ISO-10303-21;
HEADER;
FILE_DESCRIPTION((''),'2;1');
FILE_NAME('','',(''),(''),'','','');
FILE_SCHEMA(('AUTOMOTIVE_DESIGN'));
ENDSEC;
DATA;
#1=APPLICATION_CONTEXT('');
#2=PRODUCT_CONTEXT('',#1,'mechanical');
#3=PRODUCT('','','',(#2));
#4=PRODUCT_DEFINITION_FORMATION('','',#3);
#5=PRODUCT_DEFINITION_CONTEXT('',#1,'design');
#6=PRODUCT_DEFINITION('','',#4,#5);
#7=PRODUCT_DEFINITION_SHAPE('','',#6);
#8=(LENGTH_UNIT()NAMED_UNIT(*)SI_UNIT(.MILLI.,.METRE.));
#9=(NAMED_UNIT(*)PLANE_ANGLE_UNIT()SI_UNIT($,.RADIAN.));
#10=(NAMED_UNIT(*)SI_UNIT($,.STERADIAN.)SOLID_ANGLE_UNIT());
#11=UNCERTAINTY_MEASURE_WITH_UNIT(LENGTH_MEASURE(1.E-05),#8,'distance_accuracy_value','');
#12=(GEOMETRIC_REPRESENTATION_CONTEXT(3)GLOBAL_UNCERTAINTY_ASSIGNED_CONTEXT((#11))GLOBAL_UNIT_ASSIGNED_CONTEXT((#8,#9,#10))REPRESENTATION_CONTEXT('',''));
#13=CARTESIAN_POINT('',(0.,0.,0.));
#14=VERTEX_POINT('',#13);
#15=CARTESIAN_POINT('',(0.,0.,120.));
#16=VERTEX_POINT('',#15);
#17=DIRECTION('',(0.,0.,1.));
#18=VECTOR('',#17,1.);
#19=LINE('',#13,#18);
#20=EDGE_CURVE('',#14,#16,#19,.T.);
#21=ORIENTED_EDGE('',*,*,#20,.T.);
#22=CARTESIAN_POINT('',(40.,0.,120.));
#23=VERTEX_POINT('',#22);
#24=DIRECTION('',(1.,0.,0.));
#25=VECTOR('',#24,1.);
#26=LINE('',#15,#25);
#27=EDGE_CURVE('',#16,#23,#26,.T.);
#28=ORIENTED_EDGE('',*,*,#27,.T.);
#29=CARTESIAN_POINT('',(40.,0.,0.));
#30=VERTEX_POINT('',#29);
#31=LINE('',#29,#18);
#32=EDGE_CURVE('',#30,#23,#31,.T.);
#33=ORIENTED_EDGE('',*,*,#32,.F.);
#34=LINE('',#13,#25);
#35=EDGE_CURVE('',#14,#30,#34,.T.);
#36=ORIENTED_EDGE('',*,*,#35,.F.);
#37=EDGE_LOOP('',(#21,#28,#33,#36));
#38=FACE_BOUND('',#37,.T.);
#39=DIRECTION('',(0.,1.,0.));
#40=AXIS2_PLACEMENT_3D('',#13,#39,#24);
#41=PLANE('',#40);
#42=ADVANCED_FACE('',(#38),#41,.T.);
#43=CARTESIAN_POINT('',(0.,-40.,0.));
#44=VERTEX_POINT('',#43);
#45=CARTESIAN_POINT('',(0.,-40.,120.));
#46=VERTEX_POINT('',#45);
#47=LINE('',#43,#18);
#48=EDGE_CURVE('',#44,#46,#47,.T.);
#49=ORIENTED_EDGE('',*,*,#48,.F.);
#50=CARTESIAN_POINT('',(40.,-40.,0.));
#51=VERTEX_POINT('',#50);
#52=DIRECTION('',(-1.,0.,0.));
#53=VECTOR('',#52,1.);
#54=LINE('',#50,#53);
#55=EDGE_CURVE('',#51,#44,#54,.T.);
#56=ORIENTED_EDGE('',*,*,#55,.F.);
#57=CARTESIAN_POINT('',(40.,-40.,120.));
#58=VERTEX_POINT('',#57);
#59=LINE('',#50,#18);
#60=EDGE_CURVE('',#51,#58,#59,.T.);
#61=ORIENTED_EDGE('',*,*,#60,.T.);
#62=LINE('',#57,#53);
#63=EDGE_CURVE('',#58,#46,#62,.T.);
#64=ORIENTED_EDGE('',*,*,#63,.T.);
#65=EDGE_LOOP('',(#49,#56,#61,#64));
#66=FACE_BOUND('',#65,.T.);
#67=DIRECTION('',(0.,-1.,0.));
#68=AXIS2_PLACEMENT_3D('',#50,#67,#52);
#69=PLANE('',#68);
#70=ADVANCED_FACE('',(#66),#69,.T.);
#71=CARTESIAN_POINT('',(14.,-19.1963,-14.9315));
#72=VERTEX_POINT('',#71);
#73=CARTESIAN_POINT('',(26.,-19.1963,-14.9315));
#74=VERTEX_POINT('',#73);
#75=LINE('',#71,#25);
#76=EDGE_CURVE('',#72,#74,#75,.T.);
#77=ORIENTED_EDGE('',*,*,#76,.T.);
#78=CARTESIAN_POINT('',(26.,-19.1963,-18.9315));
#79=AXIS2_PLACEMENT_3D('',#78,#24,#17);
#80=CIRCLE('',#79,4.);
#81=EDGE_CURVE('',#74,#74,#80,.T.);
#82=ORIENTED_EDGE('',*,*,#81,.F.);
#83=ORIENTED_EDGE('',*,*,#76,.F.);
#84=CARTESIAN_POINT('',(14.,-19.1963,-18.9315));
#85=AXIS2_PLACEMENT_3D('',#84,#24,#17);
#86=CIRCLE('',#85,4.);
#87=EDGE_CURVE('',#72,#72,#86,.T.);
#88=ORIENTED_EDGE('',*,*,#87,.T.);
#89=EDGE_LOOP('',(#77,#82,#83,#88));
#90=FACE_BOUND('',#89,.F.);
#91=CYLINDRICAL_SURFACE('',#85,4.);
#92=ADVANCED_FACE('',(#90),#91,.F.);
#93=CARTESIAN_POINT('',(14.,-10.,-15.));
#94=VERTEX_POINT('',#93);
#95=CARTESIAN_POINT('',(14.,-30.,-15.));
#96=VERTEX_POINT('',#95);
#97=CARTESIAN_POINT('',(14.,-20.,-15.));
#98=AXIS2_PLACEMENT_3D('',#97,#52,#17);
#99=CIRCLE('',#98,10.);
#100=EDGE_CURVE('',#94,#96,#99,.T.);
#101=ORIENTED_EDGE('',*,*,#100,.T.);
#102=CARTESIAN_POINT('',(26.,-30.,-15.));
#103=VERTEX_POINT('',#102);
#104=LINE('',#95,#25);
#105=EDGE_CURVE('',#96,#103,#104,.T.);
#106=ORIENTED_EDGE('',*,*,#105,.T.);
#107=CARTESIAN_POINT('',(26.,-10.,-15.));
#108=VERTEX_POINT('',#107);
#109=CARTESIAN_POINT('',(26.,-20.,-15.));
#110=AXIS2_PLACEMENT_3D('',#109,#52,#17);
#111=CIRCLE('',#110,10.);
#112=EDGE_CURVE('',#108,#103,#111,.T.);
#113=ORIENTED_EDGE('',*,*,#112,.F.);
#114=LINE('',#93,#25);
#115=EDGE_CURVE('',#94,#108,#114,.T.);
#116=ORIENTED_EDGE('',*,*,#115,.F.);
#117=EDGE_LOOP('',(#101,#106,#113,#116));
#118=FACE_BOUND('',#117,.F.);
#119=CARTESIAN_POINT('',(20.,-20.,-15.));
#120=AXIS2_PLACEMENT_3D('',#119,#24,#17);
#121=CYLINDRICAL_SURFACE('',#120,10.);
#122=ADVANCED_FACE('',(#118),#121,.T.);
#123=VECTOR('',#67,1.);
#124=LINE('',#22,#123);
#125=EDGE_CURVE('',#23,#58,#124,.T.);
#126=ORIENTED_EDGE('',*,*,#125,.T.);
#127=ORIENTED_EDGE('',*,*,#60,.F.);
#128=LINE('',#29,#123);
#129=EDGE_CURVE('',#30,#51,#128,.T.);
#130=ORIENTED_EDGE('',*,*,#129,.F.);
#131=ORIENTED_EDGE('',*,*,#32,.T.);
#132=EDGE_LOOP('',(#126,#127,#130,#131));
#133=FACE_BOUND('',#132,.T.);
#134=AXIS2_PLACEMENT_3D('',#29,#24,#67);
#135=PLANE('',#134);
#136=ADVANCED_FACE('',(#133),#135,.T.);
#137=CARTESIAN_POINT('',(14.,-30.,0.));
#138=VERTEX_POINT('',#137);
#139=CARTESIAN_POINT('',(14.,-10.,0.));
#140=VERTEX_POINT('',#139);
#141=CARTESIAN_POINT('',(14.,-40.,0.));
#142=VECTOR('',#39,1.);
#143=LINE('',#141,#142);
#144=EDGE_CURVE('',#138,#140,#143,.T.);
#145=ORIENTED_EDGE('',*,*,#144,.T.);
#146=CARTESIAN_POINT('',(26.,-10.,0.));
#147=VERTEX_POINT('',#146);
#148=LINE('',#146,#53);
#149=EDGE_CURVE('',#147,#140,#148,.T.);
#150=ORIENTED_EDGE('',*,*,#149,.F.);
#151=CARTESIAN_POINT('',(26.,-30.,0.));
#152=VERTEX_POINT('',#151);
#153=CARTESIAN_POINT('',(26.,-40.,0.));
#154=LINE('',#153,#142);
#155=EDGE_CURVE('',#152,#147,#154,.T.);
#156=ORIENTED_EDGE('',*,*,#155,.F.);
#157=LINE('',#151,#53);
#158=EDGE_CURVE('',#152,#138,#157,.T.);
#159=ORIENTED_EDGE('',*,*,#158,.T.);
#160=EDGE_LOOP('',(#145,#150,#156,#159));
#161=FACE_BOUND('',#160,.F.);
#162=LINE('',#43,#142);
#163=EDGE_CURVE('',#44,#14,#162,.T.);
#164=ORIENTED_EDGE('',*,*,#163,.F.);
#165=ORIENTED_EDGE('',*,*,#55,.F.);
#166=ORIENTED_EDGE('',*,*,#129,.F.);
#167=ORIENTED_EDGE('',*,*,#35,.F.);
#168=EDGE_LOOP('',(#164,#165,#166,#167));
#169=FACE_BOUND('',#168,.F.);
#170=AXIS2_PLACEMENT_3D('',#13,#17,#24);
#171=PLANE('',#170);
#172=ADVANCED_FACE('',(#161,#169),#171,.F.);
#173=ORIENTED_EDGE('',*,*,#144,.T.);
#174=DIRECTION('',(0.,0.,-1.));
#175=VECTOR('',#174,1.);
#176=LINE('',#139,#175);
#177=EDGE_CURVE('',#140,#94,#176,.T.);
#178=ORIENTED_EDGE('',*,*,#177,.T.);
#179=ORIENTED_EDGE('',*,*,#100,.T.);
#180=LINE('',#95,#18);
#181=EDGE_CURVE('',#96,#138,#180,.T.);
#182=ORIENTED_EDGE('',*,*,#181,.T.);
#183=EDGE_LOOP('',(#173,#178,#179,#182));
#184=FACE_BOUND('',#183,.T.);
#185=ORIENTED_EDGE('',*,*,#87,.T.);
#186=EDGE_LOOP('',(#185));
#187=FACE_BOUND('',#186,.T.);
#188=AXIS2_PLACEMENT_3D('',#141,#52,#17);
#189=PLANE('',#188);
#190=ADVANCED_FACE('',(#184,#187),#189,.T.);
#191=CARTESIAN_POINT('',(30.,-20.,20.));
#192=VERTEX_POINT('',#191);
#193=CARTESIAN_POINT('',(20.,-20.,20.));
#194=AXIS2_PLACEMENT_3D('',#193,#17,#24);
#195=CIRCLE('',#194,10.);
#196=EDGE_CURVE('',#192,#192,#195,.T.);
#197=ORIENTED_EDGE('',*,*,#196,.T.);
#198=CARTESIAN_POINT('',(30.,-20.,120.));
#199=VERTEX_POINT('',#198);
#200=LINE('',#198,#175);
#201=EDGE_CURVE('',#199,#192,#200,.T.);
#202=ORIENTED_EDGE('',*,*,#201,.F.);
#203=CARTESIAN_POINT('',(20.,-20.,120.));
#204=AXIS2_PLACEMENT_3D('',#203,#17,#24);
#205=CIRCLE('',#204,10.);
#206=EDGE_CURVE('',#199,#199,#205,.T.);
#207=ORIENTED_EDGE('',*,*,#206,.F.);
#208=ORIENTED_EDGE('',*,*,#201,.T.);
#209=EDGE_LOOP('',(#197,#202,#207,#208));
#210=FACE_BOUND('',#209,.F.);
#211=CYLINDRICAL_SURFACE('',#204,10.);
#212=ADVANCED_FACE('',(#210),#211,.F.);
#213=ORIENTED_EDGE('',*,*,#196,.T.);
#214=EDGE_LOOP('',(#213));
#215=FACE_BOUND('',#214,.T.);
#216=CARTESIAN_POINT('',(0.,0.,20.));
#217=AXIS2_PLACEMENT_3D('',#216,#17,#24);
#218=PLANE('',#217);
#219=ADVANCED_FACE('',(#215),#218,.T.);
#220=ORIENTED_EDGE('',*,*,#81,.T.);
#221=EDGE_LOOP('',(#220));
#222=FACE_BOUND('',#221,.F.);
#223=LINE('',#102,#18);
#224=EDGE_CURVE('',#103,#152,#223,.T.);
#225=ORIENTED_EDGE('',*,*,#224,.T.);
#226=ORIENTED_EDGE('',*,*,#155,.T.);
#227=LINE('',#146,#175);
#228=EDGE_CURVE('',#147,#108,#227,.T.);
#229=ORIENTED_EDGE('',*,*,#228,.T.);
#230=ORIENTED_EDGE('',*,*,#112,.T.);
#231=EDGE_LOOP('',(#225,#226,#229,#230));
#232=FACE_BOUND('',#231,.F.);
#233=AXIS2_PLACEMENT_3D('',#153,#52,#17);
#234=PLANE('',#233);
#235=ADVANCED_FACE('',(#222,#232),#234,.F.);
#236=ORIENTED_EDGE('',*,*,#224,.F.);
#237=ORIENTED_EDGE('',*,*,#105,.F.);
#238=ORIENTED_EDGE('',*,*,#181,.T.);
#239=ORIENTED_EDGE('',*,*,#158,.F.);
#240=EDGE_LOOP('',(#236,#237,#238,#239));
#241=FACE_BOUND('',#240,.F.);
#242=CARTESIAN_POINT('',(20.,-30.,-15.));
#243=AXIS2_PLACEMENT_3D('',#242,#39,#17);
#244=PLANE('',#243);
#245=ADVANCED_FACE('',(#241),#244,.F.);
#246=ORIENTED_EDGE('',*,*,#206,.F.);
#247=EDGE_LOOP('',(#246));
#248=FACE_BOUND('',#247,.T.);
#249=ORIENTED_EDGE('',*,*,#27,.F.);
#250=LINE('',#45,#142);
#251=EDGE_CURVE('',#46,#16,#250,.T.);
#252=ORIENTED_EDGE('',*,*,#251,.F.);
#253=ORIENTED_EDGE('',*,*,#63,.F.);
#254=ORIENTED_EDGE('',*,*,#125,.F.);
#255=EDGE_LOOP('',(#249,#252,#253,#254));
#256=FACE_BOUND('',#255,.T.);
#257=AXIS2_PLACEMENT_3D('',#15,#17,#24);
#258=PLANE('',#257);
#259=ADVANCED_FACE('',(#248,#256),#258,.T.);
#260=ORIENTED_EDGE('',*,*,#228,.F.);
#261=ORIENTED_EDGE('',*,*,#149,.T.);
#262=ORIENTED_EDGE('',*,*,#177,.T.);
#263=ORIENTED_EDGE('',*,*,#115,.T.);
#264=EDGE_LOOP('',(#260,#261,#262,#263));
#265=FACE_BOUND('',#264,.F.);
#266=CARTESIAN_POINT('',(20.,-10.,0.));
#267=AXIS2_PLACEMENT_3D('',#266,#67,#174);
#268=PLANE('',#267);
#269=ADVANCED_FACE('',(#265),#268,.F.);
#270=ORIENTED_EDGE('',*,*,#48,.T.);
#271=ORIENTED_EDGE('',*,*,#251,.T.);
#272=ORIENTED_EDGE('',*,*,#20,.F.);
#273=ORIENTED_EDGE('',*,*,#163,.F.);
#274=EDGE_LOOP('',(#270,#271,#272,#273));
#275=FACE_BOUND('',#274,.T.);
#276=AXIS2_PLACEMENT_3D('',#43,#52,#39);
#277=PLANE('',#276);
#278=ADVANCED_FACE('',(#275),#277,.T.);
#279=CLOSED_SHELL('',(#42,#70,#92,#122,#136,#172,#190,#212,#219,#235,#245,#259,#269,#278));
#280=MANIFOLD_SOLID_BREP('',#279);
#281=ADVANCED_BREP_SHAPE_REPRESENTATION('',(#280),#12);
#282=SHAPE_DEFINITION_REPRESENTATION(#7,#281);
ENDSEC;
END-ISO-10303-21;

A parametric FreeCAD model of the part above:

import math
import FreeCAD as App
import Part
import Sketcher

V = App.Vector
Q = App.Units.Quantity


def add_polygon(sketch, points):
    """Adds a closed chain of lines whose ends are joined by coincident constraints."""
    first, n = sketch.GeometryCount, len(points)
    for a, b in zip(points, points[1:] + points[:1]):
        sketch.addGeometry(Part.LineSegment(App.Vector(*a, 0), App.Vector(*b, 0)), False)
    for i in range(n):
        sketch.addConstraint(Sketcher.Constraint("Coincident", first + i, 2, first + (i + 1) % n, 1))

doc = App.newDocument("Part")
body = doc.addObject("PartDesign::Body", "Body")

# Sketch on XY plane
sketch1 = body.newObject("Sketcher::SketchObject", "Sketch")
sketch1.AttachmentSupport = (doc.getObject("XY_Plane"), [""])
sketch1.MapMode = "FlatFace"
add_polygon(sketch1, [(40, 0), (0, 0), (0, -40), (40, -40)])  # lines 0-3
sketch1.addConstraint(Sketcher.Constraint("Horizontal", 0))
sketch1.addConstraint(Sketcher.Constraint("Vertical", 1))
sketch1.addConstraint(Sketcher.Constraint("Horizontal", 2))
sketch1.addConstraint(Sketcher.Constraint("Vertical", 3))
sketch1.addConstraint(Sketcher.Constraint("Coincident", 0, 2, -1, 1))
sketch1.addConstraint(Sketcher.Constraint("Equal", 2, 1))
sketch1.addConstraint(Sketcher.Constraint("DistanceX", 0, 2, 0, 1, Q("40 mm")))
pad1 = body.newObject("PartDesign::Pad", "Pad")
pad1.Profile = sketch1
pad1.Length = 120

# Sketch on XY plane
sketch2 = body.newObject("Sketcher::SketchObject", "Sketch001")
sketch2.AttachmentSupport = (doc.getObject("XY_Plane"), [""])
sketch2.MapMode = "FlatFace"
sketch2.AttachmentOffset = App.Placement(V(0, 0, 120), App.Rotation())
sketch2.addGeometry(Part.Circle(V(20, -20, 0), V(0, 0, 1), 10), False)
sketch2.addConstraint(Sketcher.Constraint("Diameter", 0, Q("20 mm")))
sketch2.addConstraint(Sketcher.Constraint("DistanceX", -1, 1, 0, 3, Q("20 mm")))
sketch2.addConstraint(Sketcher.Constraint("DistanceY", 0, 3, -1, 1, Q("20 mm")))
pocket1 = body.newObject("PartDesign::Pocket", "Pocket")
pocket1.Profile = sketch2
pocket1.Length = 100

# Sketch on YZ plane
sketch3 = body.newObject("Sketcher::SketchObject", "Sketch002")
sketch3.AttachmentSupport = (doc.getObject("YZ_Plane"), [""])
sketch3.MapMode = "FlatFace"
sketch3.AttachmentOffset = App.Placement(V(0, 0, 20), App.Rotation())
sketch3.addGeometry(Part.LineSegment(V(-30, -15, 0), V(-30, 0, 0)), False)
sketch3.addGeometry(Part.LineSegment(V(-30, 0, 0), V(-10, 0, 0)), False)
sketch3.addGeometry(Part.LineSegment(V(-10, 0, 0), V(-10, -15, 0)), False)
sketch3.addGeometry(Part.ArcOfCircle(Part.Circle(V(-20, -15, 0), V(0, 0, 1), 10), math.radians(180), math.radians(360)), False)
sketch3.addConstraint(Sketcher.Constraint("Coincident", 0, 2, 1, 1))
sketch3.addConstraint(Sketcher.Constraint("Coincident", 1, 2, 2, 1))
sketch3.addConstraint(Sketcher.Constraint("Tangent", 2, 2, 3, 2))
sketch3.addConstraint(Sketcher.Constraint("Tangent", 3, 1, 0, 1))
sketch3.addConstraint(Sketcher.Constraint("Vertical", 0))
sketch3.addConstraint(Sketcher.Constraint("Horizontal", 1))
sketch3.addConstraint(Sketcher.Constraint("Vertical", 2))
sketch3.addConstraint(Sketcher.Constraint("PointOnObject", 0, 2, -1))
sketch3.addConstraint(Sketcher.Constraint("Radius", 3, Q("10 mm")))
sketch3.addConstraint(Sketcher.Constraint("DistanceY", 0, 1, 0, 2, Q("15 mm")))
sketch3.addConstraint(Sketcher.Constraint("DistanceX", 3, 3, -1, 1, Q("20 mm")))
pad2 = body.newObject("PartDesign::Pad", "Pad001")
pad2.Profile = sketch3
pad2.Length = 12
pad2.Midplane = True

# Sketch on YZ plane
sketch4 = body.newObject("Sketcher::SketchObject", "Sketch003")
sketch4.AttachmentSupport = (doc.getObject("YZ_Plane"), [""])
sketch4.MapMode = "FlatFace"
sketch4.AttachmentOffset = App.Placement(V(0, 0, 14), App.Rotation())
sketch4.addGeometry(Part.Circle(V(-19.1963, -18.9315, 0), V(0, 0, 1), 4), False)
sketch4.addConstraint(Sketcher.Constraint("Diameter", 0, Q("8 mm")))
sketch4.addConstraint(Sketcher.Constraint("DistanceX", 0, 3, -1, 1, Q("19.1963 mm")))
sketch4.addConstraint(Sketcher.Constraint("DistanceY", 0, 3, -1, 1, Q("18.9315 mm")))
doc.recompute()
hole = body.newObject("PartDesign::Hole", "Hole")
hole.Profile = sketch4
hole.ThreadType = "None"
hole.Diameter = 8
hole.DepthType = "ThroughAll"
hole.Reversed = True

doc.recompute()
